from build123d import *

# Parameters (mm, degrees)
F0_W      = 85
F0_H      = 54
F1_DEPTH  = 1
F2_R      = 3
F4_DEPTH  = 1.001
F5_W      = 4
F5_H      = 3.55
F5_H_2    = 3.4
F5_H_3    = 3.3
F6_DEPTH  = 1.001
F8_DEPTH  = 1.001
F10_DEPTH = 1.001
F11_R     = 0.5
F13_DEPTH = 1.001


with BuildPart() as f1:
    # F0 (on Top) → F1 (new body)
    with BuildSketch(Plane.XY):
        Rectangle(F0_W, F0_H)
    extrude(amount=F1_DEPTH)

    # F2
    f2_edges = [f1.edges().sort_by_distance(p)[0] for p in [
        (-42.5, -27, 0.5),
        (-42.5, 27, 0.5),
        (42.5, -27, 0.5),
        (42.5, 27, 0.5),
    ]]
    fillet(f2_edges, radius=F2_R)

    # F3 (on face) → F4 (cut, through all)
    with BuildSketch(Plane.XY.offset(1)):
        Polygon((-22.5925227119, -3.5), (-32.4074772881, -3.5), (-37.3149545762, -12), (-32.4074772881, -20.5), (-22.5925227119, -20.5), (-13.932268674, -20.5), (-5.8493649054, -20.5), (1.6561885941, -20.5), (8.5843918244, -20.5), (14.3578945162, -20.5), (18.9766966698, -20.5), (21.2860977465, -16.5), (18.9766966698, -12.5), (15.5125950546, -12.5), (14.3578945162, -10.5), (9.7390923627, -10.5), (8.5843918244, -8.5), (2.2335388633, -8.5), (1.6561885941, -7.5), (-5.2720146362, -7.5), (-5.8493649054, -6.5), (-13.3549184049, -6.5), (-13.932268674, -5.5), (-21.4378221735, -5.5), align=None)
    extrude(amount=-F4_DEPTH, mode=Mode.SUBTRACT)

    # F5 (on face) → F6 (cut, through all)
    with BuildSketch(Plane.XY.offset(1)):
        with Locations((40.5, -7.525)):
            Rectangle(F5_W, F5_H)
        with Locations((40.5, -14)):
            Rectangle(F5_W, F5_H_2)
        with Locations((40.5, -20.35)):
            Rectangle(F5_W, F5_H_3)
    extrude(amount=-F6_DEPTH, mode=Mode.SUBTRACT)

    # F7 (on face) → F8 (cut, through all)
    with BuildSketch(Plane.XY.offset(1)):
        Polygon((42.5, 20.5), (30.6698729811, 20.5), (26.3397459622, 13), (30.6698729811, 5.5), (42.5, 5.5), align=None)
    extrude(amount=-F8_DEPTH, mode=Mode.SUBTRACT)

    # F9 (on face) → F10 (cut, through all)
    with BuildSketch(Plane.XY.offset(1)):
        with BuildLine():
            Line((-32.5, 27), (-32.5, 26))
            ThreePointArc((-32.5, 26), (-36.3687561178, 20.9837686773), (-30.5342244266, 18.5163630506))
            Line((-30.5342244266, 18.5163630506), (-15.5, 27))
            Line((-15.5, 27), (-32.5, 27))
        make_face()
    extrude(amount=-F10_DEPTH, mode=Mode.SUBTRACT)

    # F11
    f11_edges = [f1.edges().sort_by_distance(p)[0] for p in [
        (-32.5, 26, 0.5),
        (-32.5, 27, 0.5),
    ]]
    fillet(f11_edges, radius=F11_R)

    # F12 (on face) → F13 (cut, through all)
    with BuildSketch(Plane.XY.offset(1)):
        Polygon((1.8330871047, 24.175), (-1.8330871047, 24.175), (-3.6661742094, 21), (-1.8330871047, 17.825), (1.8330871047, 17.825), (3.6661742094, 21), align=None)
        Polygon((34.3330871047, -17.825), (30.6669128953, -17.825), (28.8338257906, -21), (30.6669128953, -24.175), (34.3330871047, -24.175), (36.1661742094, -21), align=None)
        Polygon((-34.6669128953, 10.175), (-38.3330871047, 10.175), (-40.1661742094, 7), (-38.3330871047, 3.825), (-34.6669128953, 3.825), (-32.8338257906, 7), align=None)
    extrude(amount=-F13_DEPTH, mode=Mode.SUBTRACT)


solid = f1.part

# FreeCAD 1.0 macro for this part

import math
import FreeCAD as App
import Part
import Sketcher
Q = App.Units.Quantity


def edges_at(feature, points):
    """Names of the edges that pass closest to the given points."""
    edges = feature.Shape.Edges
    near = lambda p: min(range(len(edges)), key=lambda i: edges[i].distToShape(Part.Vertex(*p))[0])
    return sorted({f"Edge{near(p) + 1}" for p in points})

doc = App.newDocument("Part")
body = doc.addObject("PartDesign::Body", "Body")

sketch1 = body.newObject("Sketcher::SketchObject", "Sketch")
sketch1.AttachmentSupport = (doc.getObject("XY_Plane"), [""])
sketch1.MapMode = "FlatFace"
sketch1.addGeometry([
    Part.LineSegment(App.Vector(-42, 27, 0), App.Vector(-42, -27, 0)),
    Part.LineSegment(App.Vector(-42, -27, 0), App.Vector(42, -27, 0)),
    Part.LineSegment(App.Vector(42, -27, 0), App.Vector(42, 27, 0)),
    Part.LineSegment(App.Vector(42, 27, 0), App.Vector(-42, 27, 0)),
], False)
sketch1.addConstraint([
    Sketcher.Constraint("Coincident", 0, 2, 1, 1),
    Sketcher.Constraint("Coincident", 1, 2, 2, 1),
    Sketcher.Constraint("Coincident", 2, 2, 3, 1),
    Sketcher.Constraint("Coincident", 3, 2, 0, 1),
    Sketcher.Constraint("Vertical", 0),
    Sketcher.Constraint("Horizontal", 1),
    Sketcher.Constraint("Vertical", 2),
    Sketcher.Constraint("Horizontal", 3),
    Sketcher.Constraint("Symmetric", 0, 2, 2, 2, -1, 1),
    Sketcher.Constraint("DistanceX", 1, 1, 1, 2, 85.0),
    Sketcher.Constraint("DistanceY", 0, 2, 0, 1, 54.0),
])
pad1 = body.newObject("PartDesign::Pad", "Pad")
pad1.Profile = sketch1
pad1.Length = 1
doc.recompute()

fillet = body.newObject("PartDesign::Fillet", "Fillet")
fillet.Base = (pad1, edges_at(pad1, [
    (-42.5, -27, 0.5),
    (-42.5, 27, 0.5),
    (42.5, -27, 0.5),
    (42.5, 27, 0.5),
]))
fillet.Radius = 3

sketch2 = body.newObject("Sketcher::SketchObject", "Sketch001")
sketch2.AttachmentSupport = (doc.getObject("XY_Plane"), [""])
sketch2.MapMode = "FlatFace"
sketch2.AttachmentOffset = App.Placement(App.Vector(0, 0, 1), App.Rotation())
sketch2.addGeometry([
    Part.LineSegment(App.Vector(-22.6, -3.5, 0), App.Vector(-32.4, -3.5, 0)),
    Part.LineSegment(App.Vector(-32.4, -3.5, 0), App.Vector(-37.3, -12, 0)),
    Part.LineSegment(App.Vector(-37.3, -12, 0), App.Vector(-32.4, -20.5, 0)),
    Part.LineSegment(App.Vector(-32.4, -20.5, 0), App.Vector(19, -20.5, 0)),
    Part.LineSegment(App.Vector(19, -20.5, 0), App.Vector(21.3, -16.5, 0)),
    Part.LineSegment(App.Vector(21.3, -16.5, 0), App.Vector(19, -12.5, 0)),
    Part.LineSegment(App.Vector(19, -12.5, 0), App.Vector(15.5, -12.5, 0)),
    Part.LineSegment(App.Vector(15.5, -12.5, 0), App.Vector(14.4, -10.5, 0)),
    Part.LineSegment(App.Vector(14.4, -10.5, 0), App.Vector(9.7, -10.5, 0)),
    Part.LineSegment(App.Vector(9.7, -10.5, 0), App.Vector(8.6, -8.5, 0)),
    Part.LineSegment(App.Vector(8.6, -8.5, 0), App.Vector(2.2, -8.5, 0)),
    Part.LineSegment(App.Vector(2.2, -8.5, 0), App.Vector(1.7, -7.5, 0)),
    Part.LineSegment(App.Vector(1.7, -7.5, 0), App.Vector(-5.3, -7.5, 0)),
    Part.LineSegment(App.Vector(-5.3, -7.5, 0), App.Vector(-5.8, -6.5, 0)),
    Part.LineSegment(App.Vector(-5.8, -6.5, 0), App.Vector(-13.4, -6.5, 0)),
    Part.LineSegment(App.Vector(-13.4, -6.5, 0), App.Vector(-13.9, -5.5, 0)),
    Part.LineSegment(App.Vector(-13.9, -5.5, 0), App.Vector(-21.4, -5.5, 0)),
    Part.LineSegment(App.Vector(-21.4, -5.5, 0), App.Vector(-22.6, -3.5, 0)),
], False)
sketch2.addConstraint([
    Sketcher.Constraint("Coincident", 0, 2, 1, 1),
    Sketcher.Constraint("Coincident", 1, 2, 2, 1),
    Sketcher.Constraint("Coincident", 2, 2, 3, 1),
    Sketcher.Constraint("Coincident", 3, 2, 4, 1),
    Sketcher.Constraint("Coincident", 4, 2, 5, 1),
    Sketcher.Constraint("Coincident", 5, 2, 6, 1),
    Sketcher.Constraint("Coincident", 6, 2, 7, 1),
    Sketcher.Constraint("Coincident", 7, 2, 8, 1),
    Sketcher.Constraint("Coincident", 8, 2, 9, 1),
    Sketcher.Constraint("Coincident", 9, 2, 10, 1),
    Sketcher.Constraint("Coincident", 10, 2, 11, 1),
    Sketcher.Constraint("Coincident", 11, 2, 12, 1),
    Sketcher.Constraint("Coincident", 12, 2, 13, 1),
    Sketcher.Constraint("Coincident", 13, 2, 14, 1),
    Sketcher.Constraint("Coincident", 14, 2, 15, 1),
    Sketcher.Constraint("Coincident", 15, 2, 16, 1),
    Sketcher.Constraint("Coincident", 16, 2, 17, 1),
    Sketcher.Constraint("Coincident", 17, 2, 0, 1),
    Sketcher.Constraint("Horizontal", 0),
    Sketcher.Constraint("Horizontal", 3),
    Sketcher.Constraint("Horizontal", 6),
    Sketcher.Constraint("Horizontal", 8),
    Sketcher.Constraint("Horizontal", 10),
    Sketcher.Constraint("Horizontal", 12),
    Sketcher.Constraint("Horizontal", 14),
    Sketcher.Constraint("Horizontal", 16),
    Sketcher.Constraint("Parallel", 1, 4),
    Sketcher.Constraint("Parallel", 2, 5),
    Sketcher.Constraint("Parallel", 5, 7),
    Sketcher.Constraint("Parallel", 7, 9),
    Sketcher.Constraint("Parallel", 9, 11),
    Sketcher.Constraint("Parallel", 11, 13),
    Sketcher.Constraint("Parallel", 13, 15),
    Sketcher.Constraint("Parallel", 15, 17),
    Sketcher.Constraint("Vertical", 0, 2, 2, 2),
    Sketcher.Constraint("Vertical", 3, 2, 5, 2),
    Sketcher.Constraint("Equal", 14, 16),
    Sketcher.Constraint("Equal", 1, 2),
    Sketcher.Constraint("Equal", 7, 9),
    Sketcher.Constraint("Equal", 11, 13),
    Sketcher.Constraint("Equal", 13, 15),
    Sketcher.Constraint("Equal", 9, 17),
    Sketcher.Constraint("Angle", 1, Q("-120 deg")),
    Sketcher.Constraint("DistanceY", 1, 2, -1, 1, 12.0),
    Sketcher.Constraint("DistanceY", 2, 2, 0, 2, 17.0),
    Sketcher.Constraint("DistanceY", 3, 2, 4, 2, 4.0),
    Sketcher.Constraint("DistanceY", 6, 2, 7, 2, 2.0),
    Sketcher.Constraint("DistanceX", 6, 2, 6, 1, 3.464102),
    Sketcher.Constraint("DistanceX", 0, 2, 0, 1, 9.814955),
    Sketcher.Constraint("DistanceX", 3, 1, 3, 2, 51.384174),
    Sketcher.Constraint("DistanceX", 8, 2, 8, 1, 4.618802),
    Sketcher.Constraint("DistanceX", 10, 2, 10, 1, 6.350853),
    Sketcher.Constraint("DistanceX", 12, 2, 12, 1, 6.928203),
    Sketcher.Constraint("DistanceX", -1, 1, 9, 2, 8.584392),
])
pocket1 = body.newObject("PartDesign::Pocket", "Pocket")
pocket1.Profile = sketch2
pocket1.Type = "ThroughAll"

sketch3 = body.newObject("Sketcher::SketchObject", "Sketch002")
sketch3.AttachmentSupport = (doc.getObject("XY_Plane"), [""])
sketch3.MapMode = "FlatFace"
sketch3.AttachmentOffset = App.Placement(App.Vector(0, 0, 1), App.Rotation())
sketch3.addGeometry([
    Part.LineSegment(App.Vector(38.5, -5.8, 0), App.Vector(38.5, -9.3, 0)),
    Part.LineSegment(App.Vector(38.5, -9.3, 0), App.Vector(42.5, -9.3, 0)),
    Part.LineSegment(App.Vector(42.5, -9.3, 0), App.Vector(42.5, -5.8, 0)),
    Part.LineSegment(App.Vector(42.5, -5.8, 0), App.Vector(38.5, -5.8, 0)),
    Part.LineSegment(App.Vector(38.5, -12.3, 0), App.Vector(38.5, -15.7, 0)),
    Part.LineSegment(App.Vector(38.5, -15.7, 0), App.Vector(42.5, -15.7, 0)),
    Part.LineSegment(App.Vector(42.5, -15.7, 0), App.Vector(42.5, -12.3, 0)),
    Part.LineSegment(App.Vector(42.5, -12.3, 0), App.Vector(38.5, -12.3, 0)),
    Part.LineSegment(App.Vector(38.5, -18.7, 0), App.Vector(38.5, -22, 0)),
    Part.LineSegment(App.Vector(38.5, -22, 0), App.Vector(42.5, -22, 0)),
    Part.LineSegment(App.Vector(42.5, -22, 0), App.Vector(42.5, -18.7, 0)),
    Part.LineSegment(App.Vector(42.5, -18.7, 0), App.Vector(38.5, -18.7, 0)),
], False)
sketch3.addConstraint([
    Sketcher.Constraint("Coincident", 0, 2, 1, 1),
    Sketcher.Constraint("Coincident", 1, 2, 2, 1),
    Sketcher.Constraint("Coincident", 2, 2, 3, 1),
    Sketcher.Constraint("Coincident", 3, 2, 0, 1),
    Sketcher.Constraint("Coincident", 4, 2, 5, 1),
    Sketcher.Constraint("Coincident", 5, 2, 6, 1),
    Sketcher.Constraint("Coincident", 6, 2, 7, 1),
    Sketcher.Constraint("Coincident", 7, 2, 4, 1),
    Sketcher.Constraint("Coincident", 8, 2, 9, 1),
    Sketcher.Constraint("Coincident", 9, 2, 10, 1),
    Sketcher.Constraint("Coincident", 10, 2, 11, 1),
    Sketcher.Constraint("Coincident", 11, 2, 8, 1),
    Sketcher.Constraint("Vertical", 0),
    Sketcher.Constraint("Horizontal", 1),
    Sketcher.Constraint("Vertical", 2),
    Sketcher.Constraint("Horizontal", 3),
    Sketcher.Constraint("Vertical", 4),
    Sketcher.Constraint("Horizontal", 5),
    Sketcher.Constraint("Vertical", 6),
    Sketcher.Constraint("Horizontal", 7),
    Sketcher.Constraint("Vertical", 8),
    Sketcher.Constraint("Horizontal", 9),
    Sketcher.Constraint("Vertical", 10),
    Sketcher.Constraint("Horizontal", 11),
    Sketcher.Constraint("Vertical", 3, 2, 4, 2),
    Sketcher.Constraint("Vertical", 2, 2, 5, 2),
    Sketcher.Constraint("Vertical", 7, 2, 8, 2),
    Sketcher.Constraint("Vertical", 6, 2, 9, 2),
    Sketcher.Constraint("DistanceX", 1, 1, 1, 2, 4.0),
    Sketcher.Constraint("DistanceY", 4, 2, 4, 1, 3.4),
    Sketcher.Constraint("DistanceY", 8, 2, 8, 1, 3.3),
    Sketcher.Constraint("DistanceY", 8, 2, -1, 1, 22.0),
    Sketcher.Constraint("DistanceY", 6, 2, 1, 2, 3.0),
    Sketcher.Constraint("DistanceY", 10, 2, 5, 2, 3.0),
    Sketcher.Constraint("DistanceY", 0, 2, 0, 1, 3.55),
    Sketcher.Constraint("DistanceX", -1, 1, 0, 2, 38.5),
])
pocket2 = body.newObject("PartDesign::Pocket", "Pocket001")
pocket2.Profile = sketch3
pocket2.Type = "ThroughAll"

sketch4 = body.newObject("Sketcher::SketchObject", "Sketch003")
sketch4.AttachmentSupport = (doc.getObject("XY_Plane"), [""])
sketch4.MapMode = "FlatFace"
sketch4.AttachmentOffset = App.Placement(App.Vector(0, 0, 1), App.Rotation())
sketch4.addGeometry([
    Part.LineSegment(App.Vector(42, 20, 0), App.Vector(31, 20, 0)),
    Part.LineSegment(App.Vector(31, 20, 0), App.Vector(26, 13, 0)),
    Part.LineSegment(App.Vector(26, 13, 0), App.Vector(31, 6, 0)),
    Part.LineSegment(App.Vector(31, 6, 0), App.Vector(42, 6, 0)),
    Part.LineSegment(App.Vector(42, 6, 0), App.Vector(42, 20, 0)),
], False)
sketch4.addConstraint([
    Sketcher.Constraint("Coincident", 0, 2, 1, 1),
    Sketcher.Constraint("Coincident", 1, 2, 2, 1),
    Sketcher.Constraint("Coincident", 2, 2, 3, 1),
    Sketcher.Constraint("Coincident", 3, 2, 4, 1),
    Sketcher.Constraint("Coincident", 4, 2, 0, 1),
    Sketcher.Constraint("Horizontal", 0),
    Sketcher.Constraint("Horizontal", 3),
    Sketcher.Constraint("Vertical", 4),
    Sketcher.Constraint("Vertical", 0, 2, 2, 2),
    Sketcher.Constraint("Equal", 1, 2),
    Sketcher.Constraint("DistanceY", 4, 1, 4, 2, 15.0),
    Sketcher.Constraint("Angle", 1, Q("-120 deg")),
    Sketcher.Constraint("DistanceY", -1, 1, 1, 2, 13.0),
    Sketcher.Constraint("DistanceX", -1, 1, 3, 2, 42.5),
    Sketcher.Constraint("DistanceX", 0, 2, 0, 1, 11.830127),
])
pocket3 = body.newObject("PartDesign::Pocket", "Pocket002")
pocket3.Profile = sketch4
pocket3.Type = "ThroughAll"

sketch5 = body.newObject("Sketcher::SketchObject", "Sketch004")
sketch5.AttachmentSupport = (doc.getObject("XY_Plane"), [""])
sketch5.MapMode = "FlatFace"
sketch5.AttachmentOffset = App.Placement(App.Vector(0, 0, 1), App.Rotation())
sketch5.addGeometry([
    Part.LineSegment(App.Vector(-32.5, 27, 0), App.Vector(-32.5, 26, 0)),
    Part.ArcOfCircle(Part.Circle(App.Vector(-32.5, 22, 0), App.Vector(0, 0, 1), 4), math.radians(90), math.radians(299)),
    Part.LineSegment(App.Vector(-30.5, 18.5, 0), App.Vector(-15.5, 27, 0)),
    Part.LineSegment(App.Vector(-15.5, 27, 0), App.Vector(-32.5, 27, 0)),
], False)
sketch5.addConstraint([
    Sketcher.Constraint("Coincident", 0, 2, 1, 1),
    Sketcher.Constraint("Tangent", 1, 2, 2, 1),
    Sketcher.Constraint("Coincident", 2, 2, 3, 1),
    Sketcher.Constraint("Coincident", 3, 2, 0, 1),
    Sketcher.Constraint("Vertical", 0),
    Sketcher.Constraint("Horizontal", 3),
    Sketcher.Constraint("Vertical", 1, 3, 0, 2),
    Sketcher.Constraint("Radius", 1, 4.0),
    Sketcher.Constraint("DistanceX", 3, 2, 3, 1, 17.0),
    Sketcher.Constraint("DistanceY", 0, 2, 0, 1, 1.0),
    Sketcher.Constraint("DistanceY", -1, 1, 1, 3, 22.0),
    Sketcher.Constraint("DistanceX", 1, 3, -1, 1, 32.5),
])
pocket4 = body.newObject("PartDesign::Pocket", "Pocket003")
pocket4.Profile = sketch5
pocket4.Type = "ThroughAll"
doc.recompute()

fillet2 = body.newObject("PartDesign::Fillet", "Fillet001")
fillet2.Base = (pocket4, edges_at(pocket4, [(-32.5, 26, 0.5), (-32.5, 27, 0.5)]))
fillet2.Radius = 0.5

sketch6 = body.newObject("Sketcher::SketchObject", "Sketch005")
sketch6.AttachmentSupport = (doc.getObject("XY_Plane"), [""])
sketch6.MapMode = "FlatFace"
sketch6.AttachmentOffset = App.Placement(App.Vector(0, 0, 1), App.Rotation())
sketch6.addGeometry([
    Part.LineSegment(App.Vector(1.8, 24.2, 0), App.Vector(-1.8, 24.2, 0)),
    Part.LineSegment(App.Vector(-1.8, 24.2, 0), App.Vector(-3.7, 21, 0)),
    Part.LineSegment(App.Vector(-3.7, 21, 0), App.Vector(-1.8, 17.8, 0)),
    Part.LineSegment(App.Vector(-1.8, 17.8, 0), App.Vector(1.8, 17.8, 0)),
    Part.LineSegment(App.Vector(1.8, 17.8, 0), App.Vector(3.7, 21, 0)),
    Part.LineSegment(App.Vector(3.7, 21, 0), App.Vector(1.8, 24.2, 0)),
    Part.LineSegment(App.Vector(34.3, -17.8, 0), App.Vector(30.7, -17.8, 0)),
    Part.LineSegment(App.Vector(30.7, -17.8, 0), App.Vector(28.8, -21, 0)),
    Part.LineSegment(App.Vector(28.8, -21, 0), App.Vector(30.7, -24.2, 0)),
    Part.LineSegment(App.Vector(30.7, -24.2, 0), App.Vector(34.3, -24.2, 0)),
    Part.LineSegment(App.Vector(34.3, -24.2, 0), App.Vector(36.2, -21, 0)),
    Part.LineSegment(App.Vector(36.2, -21, 0), App.Vector(34.3, -17.8, 0)),
    Part.LineSegment(App.Vector(-34.7, 10.2, 0), App.Vector(-38.3, 10.2, 0)),
    Part.LineSegment(App.Vector(-38.3, 10.2, 0), App.Vector(-40.2, 7, 0)),
    Part.LineSegment(App.Vector(-40.2, 7, 0), App.Vector(-38.3, 3.8, 0)),
    Part.LineSegment(App.Vector(-38.3, 3.8, 0), App.Vector(-34.7, 3.8, 0)),
    Part.LineSegment(App.Vector(-34.7, 3.8, 0), App.Vector(-32.8, 7, 0)),
    Part.LineSegment(App.Vector(-32.8, 7, 0), App.Vector(-34.7, 10.2, 0)),
], False)
sketch6.addConstraint([
    Sketcher.Constraint("Coincident", 0, 2, 1, 1),
    Sketcher.Constraint("Coincident", 1, 2, 2, 1),
    Sketcher.Constraint("Coincident", 2, 2, 3, 1),
    Sketcher.Constraint("Coincident", 3, 2, 4, 1),
    Sketcher.Constraint("Coincident", 4, 2, 5, 1),
    Sketcher.Constraint("Coincident", 5, 2, 0, 1),
    Sketcher.Constraint("Coincident", 6, 2, 7, 1),
    Sketcher.Constraint("Coincident", 7, 2, 8, 1),
    Sketcher.Constraint("Coincident", 8, 2, 9, 1),
    Sketcher.Constraint("Coincident", 9, 2, 10, 1),
    Sketcher.Constraint("Coincident", 10, 2, 11, 1),
    Sketcher.Constraint("Coincident", 11, 2, 6, 1),
    Sketcher.Constraint("Coincident", 12, 2, 13, 1),
    Sketcher.Constraint("Coincident", 13, 2, 14, 1),
    Sketcher.Constraint("Coincident", 14, 2, 15, 1),
    Sketcher.Constraint("Coincident", 15, 2, 16, 1),
    Sketcher.Constraint("Coincident", 16, 2, 17, 1),
    Sketcher.Constraint("Coincident", 17, 2, 12, 1),
    Sketcher.Constraint("Horizontal", 0),
    Sketcher.Constraint("Horizontal", 3),
    Sketcher.Constraint("Horizontal", 6),
    Sketcher.Constraint("Horizontal", 9),
    Sketcher.Constraint("Horizontal", 12),
    Sketcher.Constraint("Horizontal", 15),
    Sketcher.Constraint("Symmetric", 1, 2, 4, 2, -2),
    Sketcher.Constraint("Parallel", 1, 4),
    Sketcher.Constraint("Parallel", 2, 5),
    Sketcher.Constraint("Parallel", 4, 7),
    Sketcher.Constraint("Parallel", 5, 8),
    Sketcher.Constraint("Parallel", 7, 10),
    Sketcher.Constraint("Parallel", 8, 11),
    Sketcher.Constraint("Parallel", 10, 13),
    Sketcher.Constraint("Parallel", 11, 14),
    Sketcher.Constraint("Parallel", 13, 16),
    Sketcher.Constraint("Parallel", 14, 17),
    Sketcher.Constraint("Horizontal", 7, 2, 10, 2),
    Sketcher.Constraint("Horizontal", 13, 2, 16, 2),
    Sketcher.Constraint("Vertical", 0, 2, 2, 2),
    Sketcher.Constraint("Vertical", 3, 2, 5, 2),
    Sketcher.Constraint("Vertical", 6, 2, 8, 2),
    Sketcher.Constraint("Vertical", 12, 2, 14, 2),
    Sketcher.Constraint("Equal", 3, 6),
    Sketcher.Constraint("Equal", 9, 12),
    Sketcher.Constraint("Equal", 5, 7),
    Sketcher.Constraint("Equal", 11, 13),
    Sketcher.Constraint("Angle", 1, Q("-120 deg")),
    Sketcher.Constraint("DistanceY", -1, 1, 1, 2, 21.0),
    Sketcher.Constraint("DistanceY", 7, 2, -1, 1, 21.0),
    Sketcher.Constraint("DistanceY", -1, 1, 13, 2, 7.0),
    Sketcher.Constraint("DistanceX", 2, 2, 6, 2, 32.5),
    Sketcher.Constraint("DistanceX", 12, 2, 2, 2, 36.5),
    Sketcher.Constraint("DistanceY", 2, 2, 0, 2, 6.35),
    Sketcher.Constraint("DistanceX", 0, 2, 0, 1, 3.666174),
])
pocket5 = body.newObject("PartDesign::Pocket", "Pocket004")
pocket5.Profile = sketch6
pocket5.Type = "ThroughAll"

doc.recompute()
